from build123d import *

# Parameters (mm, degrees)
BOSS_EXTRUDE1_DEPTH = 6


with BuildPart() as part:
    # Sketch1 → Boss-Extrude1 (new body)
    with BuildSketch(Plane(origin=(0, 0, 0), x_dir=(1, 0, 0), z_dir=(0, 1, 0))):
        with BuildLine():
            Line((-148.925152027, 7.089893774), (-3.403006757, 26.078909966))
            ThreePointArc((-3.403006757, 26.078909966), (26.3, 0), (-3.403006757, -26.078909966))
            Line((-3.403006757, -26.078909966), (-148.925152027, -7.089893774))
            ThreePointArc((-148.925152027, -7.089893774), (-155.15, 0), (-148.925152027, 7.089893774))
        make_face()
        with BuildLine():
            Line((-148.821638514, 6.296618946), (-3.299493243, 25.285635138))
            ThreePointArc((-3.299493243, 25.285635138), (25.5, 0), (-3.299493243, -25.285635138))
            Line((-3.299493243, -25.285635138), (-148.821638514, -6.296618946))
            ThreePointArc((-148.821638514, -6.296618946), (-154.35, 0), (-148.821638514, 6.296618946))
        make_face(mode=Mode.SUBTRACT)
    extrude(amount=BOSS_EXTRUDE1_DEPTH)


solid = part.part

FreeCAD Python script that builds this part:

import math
import FreeCAD as App
import Part
import Sketcher

doc = App.newDocument("Part")
body = doc.addObject("PartDesign::Body", "Body")

# Sketch on XZ plane
sketch1 = body.newObject("Sketcher::SketchObject", "Sketch")
sketch1.AttachmentSupport = (doc.getObject("XZ_Plane"), [""])
sketch1.MapMode = "FlatFace"
sketch1.addGeometry([
    Part.LineSegment(App.Vector(-3, -26, 0), App.Vector(-149, -7, 0)),  # 0
    Part.ArcOfCircle(Part.Circle(App.Vector(-148, 0, 0), App.Vector(0, 0, 1), 7), math.radians(97), math.radians(263)),  # 1
    Part.LineSegment(App.Vector(-149, 7, 0), App.Vector(-3, 26, 0)),  # 2
    Part.ArcOfCircle(Part.Circle(App.Vector(0, 0, 0), App.Vector(0, 0, 1), 26), math.radians(-97), math.radians(97)),  # 3
    Part.LineSegment(App.Vector(-149, -6, 0), App.Vector(-3, -25, 0)),  # 4
    Part.ArcOfCircle(Part.Circle(App.Vector(0, 0, 0), App.Vector(0, 0, 1), 26), math.radians(-97), math.radians(97)),  # 5
    Part.LineSegment(App.Vector(-3, 25, 0), App.Vector(-149, 6, 0)),  # 6
    Part.ArcOfCircle(Part.Circle(App.Vector(-148, 0, 0), App.Vector(0, 0, 1), 6), math.radians(97), math.radians(263)),  # 7
], False)
sketch1.addConstraint([
    Sketcher.Constraint("Tangent", 0, 2, 1, 2),
    Sketcher.Constraint("Tangent", 1, 1, 2, 1),
    Sketcher.Constraint("Tangent", 2, 2, 3, 2),
    Sketcher.Constraint("Tangent", 3, 1, 0, 1),
    Sketcher.Constraint("Tangent", 4, 2, 5, 1),
    Sketcher.Constraint("Tangent", 5, 2, 6, 1),
    Sketcher.Constraint("Tangent", 6, 2, 7, 1),
    Sketcher.Constraint("Tangent", 7, 2, 4, 1),
    Sketcher.Constraint("Coincident", 3, 3, -1, 1),
    Sketcher.Constraint("Coincident", 5, 3, -1, 1),
    Sketcher.Constraint("Coincident", 7, 3, 1, 3),
    Sketcher.Constraint("PointOnObject", 1, 3, -1),
    Sketcher.Constraint("Parallel", 0, 4),
    Sketcher.Constraint("Radius", 3, 26.3),
    Sketcher.Constraint("Radius", 5, 25.5),
    Sketcher.Constraint("Radius", 1, 7.15),
    Sketcher.Constraint("DistanceX", 1, 3, -1, 1, 148.0),
])
pad1 = body.newObject("PartDesign::Pad", "Pad")
pad1.Profile = sketch1
pad1.Length = 6
pad1.Reversed = True

doc.recompute()
